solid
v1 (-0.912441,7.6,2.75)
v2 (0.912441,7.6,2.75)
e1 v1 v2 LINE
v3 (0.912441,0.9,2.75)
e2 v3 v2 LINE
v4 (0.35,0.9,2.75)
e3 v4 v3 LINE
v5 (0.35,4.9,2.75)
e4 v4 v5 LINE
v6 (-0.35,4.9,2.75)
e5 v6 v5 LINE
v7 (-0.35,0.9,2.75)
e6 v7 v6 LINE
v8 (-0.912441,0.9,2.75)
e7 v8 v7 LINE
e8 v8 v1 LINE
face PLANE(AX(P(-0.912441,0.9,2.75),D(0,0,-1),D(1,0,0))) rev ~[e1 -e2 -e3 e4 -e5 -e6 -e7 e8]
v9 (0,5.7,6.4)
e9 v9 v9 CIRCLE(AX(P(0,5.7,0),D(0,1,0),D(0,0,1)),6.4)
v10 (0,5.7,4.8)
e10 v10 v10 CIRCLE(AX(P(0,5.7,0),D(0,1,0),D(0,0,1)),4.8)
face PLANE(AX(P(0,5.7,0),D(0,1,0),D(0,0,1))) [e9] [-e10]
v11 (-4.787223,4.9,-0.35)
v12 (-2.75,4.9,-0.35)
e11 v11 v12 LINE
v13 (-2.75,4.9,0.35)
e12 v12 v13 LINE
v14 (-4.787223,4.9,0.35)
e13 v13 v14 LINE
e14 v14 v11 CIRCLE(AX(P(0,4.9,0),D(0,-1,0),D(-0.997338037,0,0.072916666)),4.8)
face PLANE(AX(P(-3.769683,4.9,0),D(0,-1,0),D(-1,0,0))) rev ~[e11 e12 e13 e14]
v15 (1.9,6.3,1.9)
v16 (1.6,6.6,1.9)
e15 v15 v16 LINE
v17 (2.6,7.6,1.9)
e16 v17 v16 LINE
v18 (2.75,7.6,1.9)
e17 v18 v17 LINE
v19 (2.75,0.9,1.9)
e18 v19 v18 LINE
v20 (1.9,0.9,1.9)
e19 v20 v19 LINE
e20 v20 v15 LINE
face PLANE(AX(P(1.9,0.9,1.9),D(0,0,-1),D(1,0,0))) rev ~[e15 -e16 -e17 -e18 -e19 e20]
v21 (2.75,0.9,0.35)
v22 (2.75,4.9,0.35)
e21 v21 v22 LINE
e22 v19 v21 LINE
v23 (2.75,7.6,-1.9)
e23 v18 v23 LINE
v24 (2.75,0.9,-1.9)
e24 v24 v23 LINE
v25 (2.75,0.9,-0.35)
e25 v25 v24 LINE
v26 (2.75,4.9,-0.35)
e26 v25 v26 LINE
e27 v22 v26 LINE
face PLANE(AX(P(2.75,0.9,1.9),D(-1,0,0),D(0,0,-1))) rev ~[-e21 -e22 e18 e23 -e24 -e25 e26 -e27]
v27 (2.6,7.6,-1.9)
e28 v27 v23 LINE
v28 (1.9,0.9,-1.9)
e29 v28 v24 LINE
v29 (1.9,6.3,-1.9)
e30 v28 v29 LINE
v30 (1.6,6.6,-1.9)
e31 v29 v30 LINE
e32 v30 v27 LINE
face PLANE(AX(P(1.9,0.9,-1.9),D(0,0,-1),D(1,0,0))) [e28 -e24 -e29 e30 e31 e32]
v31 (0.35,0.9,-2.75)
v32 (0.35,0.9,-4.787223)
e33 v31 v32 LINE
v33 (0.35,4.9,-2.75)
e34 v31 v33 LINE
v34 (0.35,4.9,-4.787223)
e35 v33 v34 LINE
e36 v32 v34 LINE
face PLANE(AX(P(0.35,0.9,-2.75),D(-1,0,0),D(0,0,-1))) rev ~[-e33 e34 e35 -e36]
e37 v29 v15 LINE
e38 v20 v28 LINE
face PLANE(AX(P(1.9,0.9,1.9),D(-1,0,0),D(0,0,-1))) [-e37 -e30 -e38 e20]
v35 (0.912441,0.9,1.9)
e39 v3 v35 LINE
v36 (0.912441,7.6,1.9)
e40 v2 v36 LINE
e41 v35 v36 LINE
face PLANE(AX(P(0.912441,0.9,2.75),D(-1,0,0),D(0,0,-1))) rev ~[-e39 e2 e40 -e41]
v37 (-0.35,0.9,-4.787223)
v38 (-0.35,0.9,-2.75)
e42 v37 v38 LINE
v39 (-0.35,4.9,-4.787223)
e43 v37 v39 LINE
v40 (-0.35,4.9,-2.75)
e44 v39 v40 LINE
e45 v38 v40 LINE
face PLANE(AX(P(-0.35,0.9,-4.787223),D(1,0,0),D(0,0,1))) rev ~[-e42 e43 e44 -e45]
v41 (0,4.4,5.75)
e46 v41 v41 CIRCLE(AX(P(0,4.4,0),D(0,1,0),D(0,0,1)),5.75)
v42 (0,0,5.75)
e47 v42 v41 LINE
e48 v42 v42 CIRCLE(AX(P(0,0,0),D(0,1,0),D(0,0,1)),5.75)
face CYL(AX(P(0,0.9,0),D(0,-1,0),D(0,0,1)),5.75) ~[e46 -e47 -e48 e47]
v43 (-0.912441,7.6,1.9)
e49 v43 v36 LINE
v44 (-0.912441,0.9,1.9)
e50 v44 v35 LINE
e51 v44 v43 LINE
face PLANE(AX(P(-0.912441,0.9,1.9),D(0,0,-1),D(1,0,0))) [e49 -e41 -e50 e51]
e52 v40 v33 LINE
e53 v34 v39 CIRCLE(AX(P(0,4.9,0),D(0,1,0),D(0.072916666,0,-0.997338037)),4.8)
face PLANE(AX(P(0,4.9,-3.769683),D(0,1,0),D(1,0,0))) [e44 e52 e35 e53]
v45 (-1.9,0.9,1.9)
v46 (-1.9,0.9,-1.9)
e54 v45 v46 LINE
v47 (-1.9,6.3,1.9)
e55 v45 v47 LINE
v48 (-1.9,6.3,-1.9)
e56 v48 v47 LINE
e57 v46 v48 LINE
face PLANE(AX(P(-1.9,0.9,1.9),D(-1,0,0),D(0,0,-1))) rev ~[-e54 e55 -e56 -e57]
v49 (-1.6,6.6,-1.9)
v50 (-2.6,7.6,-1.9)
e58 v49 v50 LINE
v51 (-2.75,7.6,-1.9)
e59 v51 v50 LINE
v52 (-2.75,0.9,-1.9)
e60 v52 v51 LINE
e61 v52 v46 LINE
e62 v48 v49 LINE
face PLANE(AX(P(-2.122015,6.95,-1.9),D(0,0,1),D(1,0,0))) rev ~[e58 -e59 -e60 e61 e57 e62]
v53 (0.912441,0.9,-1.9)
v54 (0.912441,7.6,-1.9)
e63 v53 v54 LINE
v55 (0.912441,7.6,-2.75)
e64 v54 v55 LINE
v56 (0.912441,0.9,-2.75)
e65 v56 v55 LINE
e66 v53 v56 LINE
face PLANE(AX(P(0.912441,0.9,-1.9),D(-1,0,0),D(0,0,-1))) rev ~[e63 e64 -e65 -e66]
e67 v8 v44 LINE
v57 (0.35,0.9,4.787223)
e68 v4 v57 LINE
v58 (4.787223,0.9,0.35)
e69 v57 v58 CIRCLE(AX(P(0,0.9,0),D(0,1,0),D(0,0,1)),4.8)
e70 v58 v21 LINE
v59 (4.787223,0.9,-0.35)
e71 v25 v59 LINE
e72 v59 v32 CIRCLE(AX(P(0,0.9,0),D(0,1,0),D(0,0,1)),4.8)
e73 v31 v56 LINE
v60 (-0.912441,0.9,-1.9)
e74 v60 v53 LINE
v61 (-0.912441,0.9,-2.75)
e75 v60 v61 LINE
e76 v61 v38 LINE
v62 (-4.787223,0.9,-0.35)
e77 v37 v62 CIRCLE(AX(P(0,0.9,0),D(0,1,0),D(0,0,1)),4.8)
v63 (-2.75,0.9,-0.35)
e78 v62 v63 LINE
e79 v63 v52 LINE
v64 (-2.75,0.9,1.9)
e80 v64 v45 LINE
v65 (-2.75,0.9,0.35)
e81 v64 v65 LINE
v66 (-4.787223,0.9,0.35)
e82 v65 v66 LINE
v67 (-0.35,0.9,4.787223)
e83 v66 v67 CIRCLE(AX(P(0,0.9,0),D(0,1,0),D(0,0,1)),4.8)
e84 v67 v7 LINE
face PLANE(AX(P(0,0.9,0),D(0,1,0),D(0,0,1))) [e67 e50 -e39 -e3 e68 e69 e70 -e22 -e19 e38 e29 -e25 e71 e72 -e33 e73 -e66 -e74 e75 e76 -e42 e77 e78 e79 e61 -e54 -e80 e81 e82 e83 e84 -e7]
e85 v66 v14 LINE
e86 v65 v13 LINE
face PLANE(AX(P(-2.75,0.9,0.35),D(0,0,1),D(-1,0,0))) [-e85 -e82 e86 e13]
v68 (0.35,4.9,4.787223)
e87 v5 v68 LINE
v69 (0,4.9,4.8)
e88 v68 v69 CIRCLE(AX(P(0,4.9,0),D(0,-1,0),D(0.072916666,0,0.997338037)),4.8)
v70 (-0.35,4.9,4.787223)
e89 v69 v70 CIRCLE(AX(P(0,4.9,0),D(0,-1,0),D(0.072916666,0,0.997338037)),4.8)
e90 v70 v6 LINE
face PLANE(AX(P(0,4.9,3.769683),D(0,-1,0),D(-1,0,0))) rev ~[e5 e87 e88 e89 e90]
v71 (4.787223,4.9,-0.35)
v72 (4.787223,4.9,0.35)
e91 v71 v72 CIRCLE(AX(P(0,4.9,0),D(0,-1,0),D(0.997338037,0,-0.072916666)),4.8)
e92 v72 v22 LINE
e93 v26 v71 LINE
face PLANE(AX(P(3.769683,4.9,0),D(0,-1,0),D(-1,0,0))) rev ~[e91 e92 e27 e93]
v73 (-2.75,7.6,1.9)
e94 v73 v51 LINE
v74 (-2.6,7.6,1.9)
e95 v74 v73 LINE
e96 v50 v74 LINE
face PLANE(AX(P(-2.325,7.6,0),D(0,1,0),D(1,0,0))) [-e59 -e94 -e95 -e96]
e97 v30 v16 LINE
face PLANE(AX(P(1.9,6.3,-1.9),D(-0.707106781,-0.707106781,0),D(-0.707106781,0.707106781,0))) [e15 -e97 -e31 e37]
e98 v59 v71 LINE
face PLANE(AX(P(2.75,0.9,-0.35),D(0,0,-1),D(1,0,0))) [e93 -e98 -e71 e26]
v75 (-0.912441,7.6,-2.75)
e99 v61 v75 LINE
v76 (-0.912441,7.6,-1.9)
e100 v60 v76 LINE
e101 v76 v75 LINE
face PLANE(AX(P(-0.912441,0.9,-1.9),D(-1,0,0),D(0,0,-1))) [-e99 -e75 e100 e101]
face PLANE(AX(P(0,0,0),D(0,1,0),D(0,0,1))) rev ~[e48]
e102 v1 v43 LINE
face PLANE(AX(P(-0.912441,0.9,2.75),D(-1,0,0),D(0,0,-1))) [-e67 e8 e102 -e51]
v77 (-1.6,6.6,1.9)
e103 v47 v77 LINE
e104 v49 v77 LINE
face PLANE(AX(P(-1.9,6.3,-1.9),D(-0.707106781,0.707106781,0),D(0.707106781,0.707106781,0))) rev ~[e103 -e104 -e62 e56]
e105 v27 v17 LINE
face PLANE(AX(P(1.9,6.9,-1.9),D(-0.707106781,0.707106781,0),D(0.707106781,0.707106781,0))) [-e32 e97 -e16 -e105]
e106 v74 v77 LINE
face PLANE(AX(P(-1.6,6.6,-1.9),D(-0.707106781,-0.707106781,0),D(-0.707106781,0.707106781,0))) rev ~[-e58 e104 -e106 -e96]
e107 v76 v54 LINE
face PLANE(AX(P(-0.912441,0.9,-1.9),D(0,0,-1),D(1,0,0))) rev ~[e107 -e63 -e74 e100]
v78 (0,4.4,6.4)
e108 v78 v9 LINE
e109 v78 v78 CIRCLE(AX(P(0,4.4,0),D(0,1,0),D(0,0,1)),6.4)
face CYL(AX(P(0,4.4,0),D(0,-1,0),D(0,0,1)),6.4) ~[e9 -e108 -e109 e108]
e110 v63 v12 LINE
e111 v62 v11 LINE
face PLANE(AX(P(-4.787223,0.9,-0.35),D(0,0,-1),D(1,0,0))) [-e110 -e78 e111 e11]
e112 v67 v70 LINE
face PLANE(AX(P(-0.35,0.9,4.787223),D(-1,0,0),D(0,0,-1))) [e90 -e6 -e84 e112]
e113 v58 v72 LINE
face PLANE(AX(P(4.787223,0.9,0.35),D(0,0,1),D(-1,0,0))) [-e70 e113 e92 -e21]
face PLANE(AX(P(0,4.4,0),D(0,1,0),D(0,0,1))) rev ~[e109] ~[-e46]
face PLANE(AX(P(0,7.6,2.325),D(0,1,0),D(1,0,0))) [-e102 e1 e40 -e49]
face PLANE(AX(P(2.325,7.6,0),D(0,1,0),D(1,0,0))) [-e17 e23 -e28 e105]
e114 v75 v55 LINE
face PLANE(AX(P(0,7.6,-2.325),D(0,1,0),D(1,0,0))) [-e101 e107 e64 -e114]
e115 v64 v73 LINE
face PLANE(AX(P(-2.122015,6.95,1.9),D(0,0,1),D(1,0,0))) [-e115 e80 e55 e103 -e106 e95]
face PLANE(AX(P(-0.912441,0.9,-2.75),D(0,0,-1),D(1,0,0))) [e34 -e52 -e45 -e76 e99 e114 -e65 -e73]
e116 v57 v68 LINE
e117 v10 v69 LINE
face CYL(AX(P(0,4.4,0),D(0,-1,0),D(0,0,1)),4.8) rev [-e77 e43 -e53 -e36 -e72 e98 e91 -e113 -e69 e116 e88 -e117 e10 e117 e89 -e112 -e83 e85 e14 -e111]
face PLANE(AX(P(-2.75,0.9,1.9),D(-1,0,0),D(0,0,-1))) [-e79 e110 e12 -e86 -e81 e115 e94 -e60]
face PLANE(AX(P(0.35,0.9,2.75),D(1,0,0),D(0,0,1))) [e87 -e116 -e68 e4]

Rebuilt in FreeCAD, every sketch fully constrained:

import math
import FreeCAD as App
import Part
import Sketcher

V = App.Vector
Q = App.Units.Quantity

doc = App.newDocument("Part")
body = doc.addObject("PartDesign::Body", "Body")

# Sketch on XZ plane
sketch1 = doc.addObject("Sketcher::SketchObject", "Sketch")
body.addObject(sketch1)
sketch1.AttachmentSupport = (doc.XZ_Plane, [""])
sketch1.MapMode = "FlatFace"
sketch1.addGeometry(Part.Circle(V(0, 0, 0), V(0, 0, 1), 6), False)
sketch1.addConstraint([
    Sketcher.Constraint("Coincident", 0, 3, -1, 1),
    Sketcher.Constraint("Diameter", 0, Q("11.5 mm")),
])
pad1 = doc.addObject("PartDesign::Pad", "Pad")
body.addObject(pad1)
pad1.Profile = sketch1
pad1.Length = 0.9
pad1.Reversed = True

# Sketch on XZ plane
sketch2 = doc.addObject("Sketcher::SketchObject", "Sketch001")
body.addObject(sketch2)
sketch2.AttachmentSupport = (doc.XZ_Plane, [""])
sketch2.MapMode = "FlatFace"
sketch2.AttachmentOffset = App.Placement(V(0, 0, -0.9), App.Rotation())
sketch2.addGeometry([
    Part.Circle(V(0, 0, 0), V(0, 0, 1), 5.8),
    Part.Circle(V(0, 0, 0), V(0, 0, 1), 4.8),
], False)
sketch2.addConstraint([
    Sketcher.Constraint("Coincident", 0, 3, -1, 1),
    Sketcher.Constraint("Coincident", 1, 3, -1, 1),
    Sketcher.Constraint("Diameter", 0, Q("11.5 mm")),
    Sketcher.Constraint("Diameter", 1, Q("9.6 mm")),
])
pad2 = doc.addObject("PartDesign::Pad", "Pad001")
body.addObject(pad2)
pad2.Profile = sketch2
pad2.Length = 3.5
pad2.Reversed = True

# Sketch on XZ plane
sketch3 = doc.addObject("Sketcher::SketchObject", "Sketch002")
body.addObject(sketch3)
sketch3.AttachmentSupport = (doc.XZ_Plane, [""])
sketch3.MapMode = "FlatFace"
sketch3.AttachmentOffset = App.Placement(V(0, 0, -4.4), App.Rotation())
sketch3.addGeometry([
    Part.Circle(V(0, 0, 0), V(0, 0, 1), 6.4),
    Part.Circle(V(0, 0, 0), V(0, 0, 1), 4.8),
], False)
sketch3.addConstraint([
    Sketcher.Constraint("Coincident", 0, 3, -1, 1),
    Sketcher.Constraint("Coincident", 1, 3, -1, 1),
    Sketcher.Constraint("Diameter", 0, Q("12.8 mm")),
    Sketcher.Constraint("Diameter", 1, Q("9.6 mm")),
])
pad3 = doc.addObject("PartDesign::Pad", "Pad002")
body.addObject(pad3)
pad3.Profile = sketch3
pad3.Length = 1.3
pad3.Reversed = True

# Sketch on XZ plane
sketch4 = doc.addObject("Sketcher::SketchObject", "Sketch003")
body.addObject(sketch4)
sketch4.AttachmentSupport = (doc.XZ_Plane, [""])
sketch4.MapMode = "FlatFace"
sketch4.AttachmentOffset = App.Placement(V(0, 0, -0.9), App.Rotation())
sketch4.addGeometry([
    Part.LineSegment(V(-2.8, -1.9, 0), V(-2.8, 1.9, 0)),  # 0
    Part.LineSegment(V(-2.8, 1.9, 0), V(-1.9, 1.9, 0)),  # 1
    Part.LineSegment(V(-1.9, 1.9, 0), V(-1.9, -1.9, 0)),  # 2
    Part.LineSegment(V(-1.9, -1.9, 0), V(-2.8, -1.9, 0)),  # 3
    Part.LineSegment(V(1.9, -1.9, 0), V(1.9, 1.9, 0)),  # 4
    Part.LineSegment(V(1.9, 1.9, 0), V(2.8, 1.9, 0)),  # 5
    Part.LineSegment(V(2.8, 1.9, 0), V(2.8, -1.9, 0)),  # 6
    Part.LineSegment(V(2.8, -1.9, 0), V(1.9, -1.9, 0)),  # 7
    Part.LineSegment(V(-0.9, -2.8, 0), V(-0.9, -1.9, 0)),  # 8
    Part.LineSegment(V(-0.9, -1.9, 0), V(0.9, -1.9, 0)),  # 9
    Part.LineSegment(V(0.9, -1.9, 0), V(0.9, -2.8, 0)),  # 10
    Part.LineSegment(V(0.9, -2.8, 0), V(-0.9, -2.8, 0)),  # 11
    Part.LineSegment(V(-0.9, 1.9, 0), V(-0.9, 2.8, 0)),  # 12
    Part.LineSegment(V(-0.9, 2.8, 0), V(0.9, 2.8, 0)),  # 13
    Part.LineSegment(V(0.9, 2.8, 0), V(0.9, 1.9, 0)),  # 14
    Part.LineSegment(V(0.9, 1.9, 0), V(-0.9, 1.9, 0)),  # 15
], False)
sketch4.addConstraint([
    Sketcher.Constraint("Coincident", 0, 2, 1, 1),
    Sketcher.Constraint("Coincident", 1, 2, 2, 1),
    Sketcher.Constraint("Coincident", 2, 2, 3, 1),
    Sketcher.Constraint("Coincident", 3, 2, 0, 1),
    Sketcher.Constraint("Coincident", 4, 2, 5, 1),
    Sketcher.Constraint("Coincident", 5, 2, 6, 1),
    Sketcher.Constraint("Coincident", 6, 2, 7, 1),
    Sketcher.Constraint("Coincident", 7, 2, 4, 1),
    Sketcher.Constraint("Coincident", 8, 2, 9, 1),
    Sketcher.Constraint("Coincident", 9, 2, 10, 1),
    Sketcher.Constraint("Coincident", 10, 2, 11, 1),
    Sketcher.Constraint("Coincident", 11, 2, 8, 1),
    Sketcher.Constraint("Coincident", 12, 2, 13, 1),
    Sketcher.Constraint("Coincident", 13, 2, 14, 1),
    Sketcher.Constraint("Coincident", 14, 2, 15, 1),
    Sketcher.Constraint("Coincident", 15, 2, 12, 1),
    Sketcher.Constraint("Vertical", 0),
    Sketcher.Constraint("Horizontal", 1),
    Sketcher.Constraint("Vertical", 2),
    Sketcher.Constraint("Horizontal", 3),
    Sketcher.Constraint("Vertical", 4),
    Sketcher.Constraint("Horizontal", 5),
    Sketcher.Constraint("Vertical", 6),
    Sketcher.Constraint("Horizontal", 7),
    Sketcher.Constraint("Vertical", 8),
    Sketcher.Constraint("Horizontal", 9),
    Sketcher.Constraint("Vertical", 10),
    Sketcher.Constraint("Horizontal", 11),
    Sketcher.Constraint("Vertical", 12),
    Sketcher.Constraint("Horizontal", 13),
    Sketcher.Constraint("Vertical", 14),
    Sketcher.Constraint("Horizontal", 15),
    Sketcher.Constraint("Symmetric", 2, 2, 4, 2, -1, 1),
    Sketcher.Constraint("Symmetric", 0, 2, 6, 2, -1, 1),
    Sketcher.Constraint("Symmetric", 10, 2, 12, 2, -1, 1),
    Sketcher.Constraint("Symmetric", 8, 2, 14, 2, -1, 1),
    Sketcher.Constraint("Horizontal", 1, 2, 4, 2),
    Sketcher.Constraint("Horizontal", 7, 2, 8, 2),
    Sketcher.Constraint("Vertical", 11, 2, 12, 2),
    Sketcher.Constraint("Equal", 7, 8),
    Sketcher.Constraint("DistanceY", 0, 1, 0, 2, Q("3.8 mm")),
    Sketcher.Constraint("DistanceX", 1, 1, 1, 2, Q("0.85 mm")),
    Sketcher.Constraint("DistanceX", 1, 2, -1, 1, Q("1.9 mm")),
    Sketcher.Constraint("DistanceX", 9, 1, 9, 2, Q("1.824882 mm")),
])
pad4 = doc.addObject("PartDesign::Pad", "Pad003")
body.addObject(pad4)
pad4.Profile = sketch4
pad4.Length = 6.7
pad4.Reversed = True

# Sketch on XY plane
sketch5 = doc.addObject("Sketcher::SketchObject", "Sketch004")
body.addObject(sketch5)
sketch5.AttachmentSupport = (doc.XY_Plane, [""])
sketch5.MapMode = "FlatFace"
sketch5.AttachmentOffset = App.Placement(V(0, 0, -1.9), App.Rotation())
sketch5.addGeometry([
    Part.LineSegment(V(-1.6, 6.6, 0), V(-1.9, 6.3, 0)),  # 0
    Part.LineSegment(V(-1.9, 6.3, 0), V(-2.6, 7.6, 0)),  # 1
    Part.LineSegment(V(-2.6, 7.6, 0), V(-1.6, 6.6, 0)),  # 2
    Part.LineSegment(V(1.9, 6.3, 0), V(1.6, 6.6, 0)),  # 3
    Part.LineSegment(V(1.6, 6.6, 0), V(2.6, 7.6, 0)),  # 4
    Part.LineSegment(V(2.6, 7.6, 0), V(1.9, 6.3, 0)),  # 5
], False)
sketch5.addConstraint([
    Sketcher.Constraint("Coincident", 0, 2, 1, 1),
    Sketcher.Constraint("Coincident", 1, 2, 2, 1),
    Sketcher.Constraint("Coincident", 2, 2, 0, 1),
    Sketcher.Constraint("Coincident", 3, 2, 4, 1),
    Sketcher.Constraint("Coincident", 4, 2, 5, 1),
    Sketcher.Constraint("Coincident", 5, 2, 3, 1),
    Sketcher.Constraint("Symmetric", 2, 2, 3, 2, -2),
    Sketcher.Constraint("Symmetric", 1, 2, 4, 2, -2),
    Sketcher.Constraint("Symmetric", 0, 2, 5, 2, -2),
    Sketcher.Constraint("Perpendicular", 0, 2),
    Sketcher.Constraint("Parallel", 2, 3),
    Sketcher.Constraint("DistanceX", 1, 2, 2, 2, Q("1 mm")),
    Sketcher.Constraint("DistanceX", 0, 2, -1, 1, Q("1.9 mm")),
    Sketcher.Constraint("DistanceY", -1, 1, 0, 2, Q("6.3 mm")),
    Sketcher.Constraint("DistanceX", 1, 2, -1, 1, Q("2.6 mm")),
])
pad5 = doc.addObject("PartDesign::Pad", "Pad004")
body.addObject(pad5)
pad5.Profile = sketch5
pad5.Length = 3.8

# Sketch on XY plane
sketch6 = doc.addObject("Sketcher::SketchObject", "Sketch005")
body.addObject(sketch6)
sketch6.AttachmentSupport = (doc.XY_Plane, [""])
sketch6.MapMode = "FlatFace"
sketch6.AttachmentOffset = App.Placement(V(0, 0, -1.9), App.Rotation())
sketch6.addGeometry([
    Part.LineSegment(V(-1.9, 6.9, 0), V(-2.6, 7.6, 0)),
    Part.LineSegment(V(-2.6, 7.6, 0), V(-1.9, 7.6, 0)),
    Part.LineSegment(V(-1.9, 7.6, 0), V(-1.9, 6.9, 0)),
], False)
sketch6.addConstraint([
    Sketcher.Constraint("Coincident", 0, 2, 1, 1),
    Sketcher.Constraint("Coincident", 1, 2, 2, 1),
    Sketcher.Constraint("Coincident", 2, 2, 0, 1),
    Sketcher.Constraint("Horizontal", 1),
    Sketcher.Constraint("Vertical", 2),
    Sketcher.Constraint("Equal", 1, 2),
    Sketcher.Constraint("DistanceX", 1, 1, 1, 2, Q("0.7 mm")),
    Sketcher.Constraint("DistanceX", 0, 2, -1, 1, Q("2.6 mm")),
    Sketcher.Constraint("DistanceY", -1, 1, 0, 2, Q("7.6 mm")),
])
pocket1 = doc.addObject("PartDesign::Pocket", "Pocket")
body.addObject(pocket1)
pocket1.Profile = sketch6
pocket1.Type = "UpToFirst"
pocket1.Reversed = True

# Sketch on XY plane
sketch7 = doc.addObject("Sketcher::SketchObject", "Sketch006")
body.addObject(sketch7)
sketch7.AttachmentSupport = (doc.XY_Plane, [""])
sketch7.MapMode = "FlatFace"
sketch7.AttachmentOffset = App.Placement(V(0, 0, -1.9), App.Rotation())
sketch7.addGeometry([
    Part.LineSegment(V(2.6, 7.6, 0), V(1.9, 6.9, 0)),
    Part.LineSegment(V(1.9, 6.9, 0), V(1.9, 7.6, 0)),
    Part.LineSegment(V(1.9, 7.6, 0), V(2.6, 7.6, 0)),
], False)
sketch7.addConstraint([
    Sketcher.Constraint("Coincident", 0, 2, 1, 1),
    Sketcher.Constraint("Coincident", 1, 2, 2, 1),
    Sketcher.Constraint("Coincident", 2, 2, 0, 1),
    Sketcher.Constraint("Vertical", 1),
    Sketcher.Constraint("Horizontal", 2),
    Sketcher.Constraint("Equal", 2, 1),
    Sketcher.Constraint("DistanceX", 2, 1, 2, 2, Q("0.7 mm")),
    Sketcher.Constraint("DistanceX", -1, 1, 0, 2, Q("1.9 mm")),
    Sketcher.Constraint("DistanceY", -1, 1, 0, 2, Q("6.9 mm")),
])
pocket2 = doc.addObject("PartDesign::Pocket", "Pocket001")
body.addObject(pocket2)
pocket2.Profile = sketch7
pocket2.Type = "UpToFirst"
pocket2.Reversed = True

# Sketch on XZ plane
sketch8 = doc.addObject("Sketcher::SketchObject", "Sketch007")
body.addObject(sketch8)
sketch8.AttachmentSupport = (doc.XZ_Plane, [""])
sketch8.MapMode = "FlatFace"
sketch8.AttachmentOffset = App.Placement(V(0, 0, -0.9), App.Rotation())
sketch8.addGeometry([
    Part.LineSegment(V(0.3, 2.8, 0), V(-0.3, 2.8, 0)),  # 0
    Part.LineSegment(V(-0.3, 2.8, 0), V(-0.3, 4.8, 0)),  # 1
    Part.ArcOfCircle(Part.Circle(V(0, 0, 0), V(0, 0, 1), 4.8), math.radians(85.82), math.radians(94.18)),  # 2
    Part.LineSegment(V(0.3, 4.8, 0), V(0.3, 2.8, 0)),  # 3
    Part.LineSegment(V(2.8, 0.3, 0), V(4.8, 0.3, 0)),  # 4
    Part.ArcOfCircle(Part.Circle(V(0, 0, 0), V(0, 0, 1), 4.8), math.radians(-4.18), math.radians(4.18)),  # 5
    Part.LineSegment(V(4.8, -0.3, 0), V(2.8, -0.3, 0)),  # 6
    Part.LineSegment(V(2.8, -0.3, 0), V(2.8, 0.3, 0)),  # 7
    Part.LineSegment(V(0.3, -2.8, 0), V(0.3, -4.8, 0)),  # 8
    Part.ArcOfCircle(Part.Circle(V(0, 0, 0), V(0, 0, 1), 4.8), math.radians(-94.18), math.radians(-85.82)),  # 9
    Part.LineSegment(V(-0.3, -4.8, 0), V(-0.3, -2.8, 0)),  # 10
    Part.LineSegment(V(-0.3, -2.8, 0), V(0.3, -2.8, 0)),  # 11
    Part.LineSegment(V(-4.8, 0.3, 0), V(-2.8, 0.3, 0)),  # 12
    Part.LineSegment(V(-2.8, 0.3, 0), V(-2.8, -0.3, 0)),  # 13
    Part.LineSegment(V(-2.8, -0.3, 0), V(-4.8, -0.3, 0)),  # 14
    Part.ArcOfCircle(Part.Circle(V(0, 0, 0), V(0, 0, 1), 4.8), math.radians(175.82), math.radians(184.18)),  # 15
], False)
sketch8.addConstraint([
    Sketcher.Constraint("Coincident", 0, 2, 1, 1),
    Sketcher.Constraint("Coincident", 1, 2, 2, 2),
    Sketcher.Constraint("Coincident", 2, 1, 3, 1),
    Sketcher.Constraint("Coincident", 3, 2, 0, 1),
    Sketcher.Constraint("Coincident", 4, 2, 5, 2),
    Sketcher.Constraint("Coincident", 5, 1, 6, 1),
    Sketcher.Constraint("Coincident", 6, 2, 7, 1),
    Sketcher.Constraint("Coincident", 7, 2, 4, 1),
    Sketcher.Constraint("Coincident", 8, 2, 9, 2),
    Sketcher.Constraint("Coincident", 9, 1, 10, 1),
    Sketcher.Constraint("Coincident", 10, 2, 11, 1),
    Sketcher.Constraint("Coincident", 11, 2, 8, 1),
    Sketcher.Constraint("Coincident", 12, 2, 13, 1),
    Sketcher.Constraint("Coincident", 13, 2, 14, 1),
    Sketcher.Constraint("Coincident", 14, 2, 15, 2),
    Sketcher.Constraint("Coincident", 15, 1, 12, 1),
    Sketcher.Constraint("Horizontal", 0),
    Sketcher.Constraint("Vertical", 1),
    Sketcher.Constraint("Vertical", 3),
    Sketcher.Constraint("Horizontal", 4),
    Sketcher.Constraint("Horizontal", 6),
    Sketcher.Constraint("Vertical", 7),
    Sketcher.Constraint("Vertical", 8),
    Sketcher.Constraint("Vertical", 10),
    Sketcher.Constraint("Horizontal", 11),
    Sketcher.Constraint("Horizontal", 12),
    Sketcher.Constraint("Vertical", 13),
    Sketcher.Constraint("Horizontal", 14),
    Sketcher.Constraint("Coincident", 2, 3, -1, 1),
    Sketcher.Constraint("Coincident", 5, 3, -1, 1),
    Sketcher.Constraint("Coincident", 9, 3, -1, 1),
    Sketcher.Constraint("Coincident", 15, 3, -1, 1),
    Sketcher.Constraint("Equal", 2, 5),
    Sketcher.Constraint("Equal", 5, 9),
    Sketcher.Constraint("Equal", 9, 15),
    Sketcher.Constraint("Symmetric", 3, 2, 10, 2, -1, 1),
    Sketcher.Constraint("Symmetric", 6, 2, 12, 2, -1, 1),
    Sketcher.Constraint("Horizontal", 1, 2, 2, 1),
    Sketcher.Constraint("Horizontal", 8, 2, 9, 1),
    Sketcher.Constraint("Horizontal", 7, 2, 12, 2),
    Sketcher.Constraint("Horizontal", 6, 2, 13, 2),
    Sketcher.Constraint("Equal", 14, 1),
    Sketcher.Constraint("Equal", 11, 7),
    Sketcher.Constraint("Radius", 2, Q("4.8 mm")),
    Sketcher.Constraint("DistanceX", 0, 2, 0, 1, Q("0.7 mm")),
    Sketcher.Constraint("DistanceY", 4, 2, 3, 2, Q("2.4 mm")),
])
pad6 = doc.addObject("PartDesign::Pad", "Pad005")
body.addObject(pad6)
pad6.Profile = sketch8
pad6.Length = 4
pad6.Reversed = True

doc.recompute()
